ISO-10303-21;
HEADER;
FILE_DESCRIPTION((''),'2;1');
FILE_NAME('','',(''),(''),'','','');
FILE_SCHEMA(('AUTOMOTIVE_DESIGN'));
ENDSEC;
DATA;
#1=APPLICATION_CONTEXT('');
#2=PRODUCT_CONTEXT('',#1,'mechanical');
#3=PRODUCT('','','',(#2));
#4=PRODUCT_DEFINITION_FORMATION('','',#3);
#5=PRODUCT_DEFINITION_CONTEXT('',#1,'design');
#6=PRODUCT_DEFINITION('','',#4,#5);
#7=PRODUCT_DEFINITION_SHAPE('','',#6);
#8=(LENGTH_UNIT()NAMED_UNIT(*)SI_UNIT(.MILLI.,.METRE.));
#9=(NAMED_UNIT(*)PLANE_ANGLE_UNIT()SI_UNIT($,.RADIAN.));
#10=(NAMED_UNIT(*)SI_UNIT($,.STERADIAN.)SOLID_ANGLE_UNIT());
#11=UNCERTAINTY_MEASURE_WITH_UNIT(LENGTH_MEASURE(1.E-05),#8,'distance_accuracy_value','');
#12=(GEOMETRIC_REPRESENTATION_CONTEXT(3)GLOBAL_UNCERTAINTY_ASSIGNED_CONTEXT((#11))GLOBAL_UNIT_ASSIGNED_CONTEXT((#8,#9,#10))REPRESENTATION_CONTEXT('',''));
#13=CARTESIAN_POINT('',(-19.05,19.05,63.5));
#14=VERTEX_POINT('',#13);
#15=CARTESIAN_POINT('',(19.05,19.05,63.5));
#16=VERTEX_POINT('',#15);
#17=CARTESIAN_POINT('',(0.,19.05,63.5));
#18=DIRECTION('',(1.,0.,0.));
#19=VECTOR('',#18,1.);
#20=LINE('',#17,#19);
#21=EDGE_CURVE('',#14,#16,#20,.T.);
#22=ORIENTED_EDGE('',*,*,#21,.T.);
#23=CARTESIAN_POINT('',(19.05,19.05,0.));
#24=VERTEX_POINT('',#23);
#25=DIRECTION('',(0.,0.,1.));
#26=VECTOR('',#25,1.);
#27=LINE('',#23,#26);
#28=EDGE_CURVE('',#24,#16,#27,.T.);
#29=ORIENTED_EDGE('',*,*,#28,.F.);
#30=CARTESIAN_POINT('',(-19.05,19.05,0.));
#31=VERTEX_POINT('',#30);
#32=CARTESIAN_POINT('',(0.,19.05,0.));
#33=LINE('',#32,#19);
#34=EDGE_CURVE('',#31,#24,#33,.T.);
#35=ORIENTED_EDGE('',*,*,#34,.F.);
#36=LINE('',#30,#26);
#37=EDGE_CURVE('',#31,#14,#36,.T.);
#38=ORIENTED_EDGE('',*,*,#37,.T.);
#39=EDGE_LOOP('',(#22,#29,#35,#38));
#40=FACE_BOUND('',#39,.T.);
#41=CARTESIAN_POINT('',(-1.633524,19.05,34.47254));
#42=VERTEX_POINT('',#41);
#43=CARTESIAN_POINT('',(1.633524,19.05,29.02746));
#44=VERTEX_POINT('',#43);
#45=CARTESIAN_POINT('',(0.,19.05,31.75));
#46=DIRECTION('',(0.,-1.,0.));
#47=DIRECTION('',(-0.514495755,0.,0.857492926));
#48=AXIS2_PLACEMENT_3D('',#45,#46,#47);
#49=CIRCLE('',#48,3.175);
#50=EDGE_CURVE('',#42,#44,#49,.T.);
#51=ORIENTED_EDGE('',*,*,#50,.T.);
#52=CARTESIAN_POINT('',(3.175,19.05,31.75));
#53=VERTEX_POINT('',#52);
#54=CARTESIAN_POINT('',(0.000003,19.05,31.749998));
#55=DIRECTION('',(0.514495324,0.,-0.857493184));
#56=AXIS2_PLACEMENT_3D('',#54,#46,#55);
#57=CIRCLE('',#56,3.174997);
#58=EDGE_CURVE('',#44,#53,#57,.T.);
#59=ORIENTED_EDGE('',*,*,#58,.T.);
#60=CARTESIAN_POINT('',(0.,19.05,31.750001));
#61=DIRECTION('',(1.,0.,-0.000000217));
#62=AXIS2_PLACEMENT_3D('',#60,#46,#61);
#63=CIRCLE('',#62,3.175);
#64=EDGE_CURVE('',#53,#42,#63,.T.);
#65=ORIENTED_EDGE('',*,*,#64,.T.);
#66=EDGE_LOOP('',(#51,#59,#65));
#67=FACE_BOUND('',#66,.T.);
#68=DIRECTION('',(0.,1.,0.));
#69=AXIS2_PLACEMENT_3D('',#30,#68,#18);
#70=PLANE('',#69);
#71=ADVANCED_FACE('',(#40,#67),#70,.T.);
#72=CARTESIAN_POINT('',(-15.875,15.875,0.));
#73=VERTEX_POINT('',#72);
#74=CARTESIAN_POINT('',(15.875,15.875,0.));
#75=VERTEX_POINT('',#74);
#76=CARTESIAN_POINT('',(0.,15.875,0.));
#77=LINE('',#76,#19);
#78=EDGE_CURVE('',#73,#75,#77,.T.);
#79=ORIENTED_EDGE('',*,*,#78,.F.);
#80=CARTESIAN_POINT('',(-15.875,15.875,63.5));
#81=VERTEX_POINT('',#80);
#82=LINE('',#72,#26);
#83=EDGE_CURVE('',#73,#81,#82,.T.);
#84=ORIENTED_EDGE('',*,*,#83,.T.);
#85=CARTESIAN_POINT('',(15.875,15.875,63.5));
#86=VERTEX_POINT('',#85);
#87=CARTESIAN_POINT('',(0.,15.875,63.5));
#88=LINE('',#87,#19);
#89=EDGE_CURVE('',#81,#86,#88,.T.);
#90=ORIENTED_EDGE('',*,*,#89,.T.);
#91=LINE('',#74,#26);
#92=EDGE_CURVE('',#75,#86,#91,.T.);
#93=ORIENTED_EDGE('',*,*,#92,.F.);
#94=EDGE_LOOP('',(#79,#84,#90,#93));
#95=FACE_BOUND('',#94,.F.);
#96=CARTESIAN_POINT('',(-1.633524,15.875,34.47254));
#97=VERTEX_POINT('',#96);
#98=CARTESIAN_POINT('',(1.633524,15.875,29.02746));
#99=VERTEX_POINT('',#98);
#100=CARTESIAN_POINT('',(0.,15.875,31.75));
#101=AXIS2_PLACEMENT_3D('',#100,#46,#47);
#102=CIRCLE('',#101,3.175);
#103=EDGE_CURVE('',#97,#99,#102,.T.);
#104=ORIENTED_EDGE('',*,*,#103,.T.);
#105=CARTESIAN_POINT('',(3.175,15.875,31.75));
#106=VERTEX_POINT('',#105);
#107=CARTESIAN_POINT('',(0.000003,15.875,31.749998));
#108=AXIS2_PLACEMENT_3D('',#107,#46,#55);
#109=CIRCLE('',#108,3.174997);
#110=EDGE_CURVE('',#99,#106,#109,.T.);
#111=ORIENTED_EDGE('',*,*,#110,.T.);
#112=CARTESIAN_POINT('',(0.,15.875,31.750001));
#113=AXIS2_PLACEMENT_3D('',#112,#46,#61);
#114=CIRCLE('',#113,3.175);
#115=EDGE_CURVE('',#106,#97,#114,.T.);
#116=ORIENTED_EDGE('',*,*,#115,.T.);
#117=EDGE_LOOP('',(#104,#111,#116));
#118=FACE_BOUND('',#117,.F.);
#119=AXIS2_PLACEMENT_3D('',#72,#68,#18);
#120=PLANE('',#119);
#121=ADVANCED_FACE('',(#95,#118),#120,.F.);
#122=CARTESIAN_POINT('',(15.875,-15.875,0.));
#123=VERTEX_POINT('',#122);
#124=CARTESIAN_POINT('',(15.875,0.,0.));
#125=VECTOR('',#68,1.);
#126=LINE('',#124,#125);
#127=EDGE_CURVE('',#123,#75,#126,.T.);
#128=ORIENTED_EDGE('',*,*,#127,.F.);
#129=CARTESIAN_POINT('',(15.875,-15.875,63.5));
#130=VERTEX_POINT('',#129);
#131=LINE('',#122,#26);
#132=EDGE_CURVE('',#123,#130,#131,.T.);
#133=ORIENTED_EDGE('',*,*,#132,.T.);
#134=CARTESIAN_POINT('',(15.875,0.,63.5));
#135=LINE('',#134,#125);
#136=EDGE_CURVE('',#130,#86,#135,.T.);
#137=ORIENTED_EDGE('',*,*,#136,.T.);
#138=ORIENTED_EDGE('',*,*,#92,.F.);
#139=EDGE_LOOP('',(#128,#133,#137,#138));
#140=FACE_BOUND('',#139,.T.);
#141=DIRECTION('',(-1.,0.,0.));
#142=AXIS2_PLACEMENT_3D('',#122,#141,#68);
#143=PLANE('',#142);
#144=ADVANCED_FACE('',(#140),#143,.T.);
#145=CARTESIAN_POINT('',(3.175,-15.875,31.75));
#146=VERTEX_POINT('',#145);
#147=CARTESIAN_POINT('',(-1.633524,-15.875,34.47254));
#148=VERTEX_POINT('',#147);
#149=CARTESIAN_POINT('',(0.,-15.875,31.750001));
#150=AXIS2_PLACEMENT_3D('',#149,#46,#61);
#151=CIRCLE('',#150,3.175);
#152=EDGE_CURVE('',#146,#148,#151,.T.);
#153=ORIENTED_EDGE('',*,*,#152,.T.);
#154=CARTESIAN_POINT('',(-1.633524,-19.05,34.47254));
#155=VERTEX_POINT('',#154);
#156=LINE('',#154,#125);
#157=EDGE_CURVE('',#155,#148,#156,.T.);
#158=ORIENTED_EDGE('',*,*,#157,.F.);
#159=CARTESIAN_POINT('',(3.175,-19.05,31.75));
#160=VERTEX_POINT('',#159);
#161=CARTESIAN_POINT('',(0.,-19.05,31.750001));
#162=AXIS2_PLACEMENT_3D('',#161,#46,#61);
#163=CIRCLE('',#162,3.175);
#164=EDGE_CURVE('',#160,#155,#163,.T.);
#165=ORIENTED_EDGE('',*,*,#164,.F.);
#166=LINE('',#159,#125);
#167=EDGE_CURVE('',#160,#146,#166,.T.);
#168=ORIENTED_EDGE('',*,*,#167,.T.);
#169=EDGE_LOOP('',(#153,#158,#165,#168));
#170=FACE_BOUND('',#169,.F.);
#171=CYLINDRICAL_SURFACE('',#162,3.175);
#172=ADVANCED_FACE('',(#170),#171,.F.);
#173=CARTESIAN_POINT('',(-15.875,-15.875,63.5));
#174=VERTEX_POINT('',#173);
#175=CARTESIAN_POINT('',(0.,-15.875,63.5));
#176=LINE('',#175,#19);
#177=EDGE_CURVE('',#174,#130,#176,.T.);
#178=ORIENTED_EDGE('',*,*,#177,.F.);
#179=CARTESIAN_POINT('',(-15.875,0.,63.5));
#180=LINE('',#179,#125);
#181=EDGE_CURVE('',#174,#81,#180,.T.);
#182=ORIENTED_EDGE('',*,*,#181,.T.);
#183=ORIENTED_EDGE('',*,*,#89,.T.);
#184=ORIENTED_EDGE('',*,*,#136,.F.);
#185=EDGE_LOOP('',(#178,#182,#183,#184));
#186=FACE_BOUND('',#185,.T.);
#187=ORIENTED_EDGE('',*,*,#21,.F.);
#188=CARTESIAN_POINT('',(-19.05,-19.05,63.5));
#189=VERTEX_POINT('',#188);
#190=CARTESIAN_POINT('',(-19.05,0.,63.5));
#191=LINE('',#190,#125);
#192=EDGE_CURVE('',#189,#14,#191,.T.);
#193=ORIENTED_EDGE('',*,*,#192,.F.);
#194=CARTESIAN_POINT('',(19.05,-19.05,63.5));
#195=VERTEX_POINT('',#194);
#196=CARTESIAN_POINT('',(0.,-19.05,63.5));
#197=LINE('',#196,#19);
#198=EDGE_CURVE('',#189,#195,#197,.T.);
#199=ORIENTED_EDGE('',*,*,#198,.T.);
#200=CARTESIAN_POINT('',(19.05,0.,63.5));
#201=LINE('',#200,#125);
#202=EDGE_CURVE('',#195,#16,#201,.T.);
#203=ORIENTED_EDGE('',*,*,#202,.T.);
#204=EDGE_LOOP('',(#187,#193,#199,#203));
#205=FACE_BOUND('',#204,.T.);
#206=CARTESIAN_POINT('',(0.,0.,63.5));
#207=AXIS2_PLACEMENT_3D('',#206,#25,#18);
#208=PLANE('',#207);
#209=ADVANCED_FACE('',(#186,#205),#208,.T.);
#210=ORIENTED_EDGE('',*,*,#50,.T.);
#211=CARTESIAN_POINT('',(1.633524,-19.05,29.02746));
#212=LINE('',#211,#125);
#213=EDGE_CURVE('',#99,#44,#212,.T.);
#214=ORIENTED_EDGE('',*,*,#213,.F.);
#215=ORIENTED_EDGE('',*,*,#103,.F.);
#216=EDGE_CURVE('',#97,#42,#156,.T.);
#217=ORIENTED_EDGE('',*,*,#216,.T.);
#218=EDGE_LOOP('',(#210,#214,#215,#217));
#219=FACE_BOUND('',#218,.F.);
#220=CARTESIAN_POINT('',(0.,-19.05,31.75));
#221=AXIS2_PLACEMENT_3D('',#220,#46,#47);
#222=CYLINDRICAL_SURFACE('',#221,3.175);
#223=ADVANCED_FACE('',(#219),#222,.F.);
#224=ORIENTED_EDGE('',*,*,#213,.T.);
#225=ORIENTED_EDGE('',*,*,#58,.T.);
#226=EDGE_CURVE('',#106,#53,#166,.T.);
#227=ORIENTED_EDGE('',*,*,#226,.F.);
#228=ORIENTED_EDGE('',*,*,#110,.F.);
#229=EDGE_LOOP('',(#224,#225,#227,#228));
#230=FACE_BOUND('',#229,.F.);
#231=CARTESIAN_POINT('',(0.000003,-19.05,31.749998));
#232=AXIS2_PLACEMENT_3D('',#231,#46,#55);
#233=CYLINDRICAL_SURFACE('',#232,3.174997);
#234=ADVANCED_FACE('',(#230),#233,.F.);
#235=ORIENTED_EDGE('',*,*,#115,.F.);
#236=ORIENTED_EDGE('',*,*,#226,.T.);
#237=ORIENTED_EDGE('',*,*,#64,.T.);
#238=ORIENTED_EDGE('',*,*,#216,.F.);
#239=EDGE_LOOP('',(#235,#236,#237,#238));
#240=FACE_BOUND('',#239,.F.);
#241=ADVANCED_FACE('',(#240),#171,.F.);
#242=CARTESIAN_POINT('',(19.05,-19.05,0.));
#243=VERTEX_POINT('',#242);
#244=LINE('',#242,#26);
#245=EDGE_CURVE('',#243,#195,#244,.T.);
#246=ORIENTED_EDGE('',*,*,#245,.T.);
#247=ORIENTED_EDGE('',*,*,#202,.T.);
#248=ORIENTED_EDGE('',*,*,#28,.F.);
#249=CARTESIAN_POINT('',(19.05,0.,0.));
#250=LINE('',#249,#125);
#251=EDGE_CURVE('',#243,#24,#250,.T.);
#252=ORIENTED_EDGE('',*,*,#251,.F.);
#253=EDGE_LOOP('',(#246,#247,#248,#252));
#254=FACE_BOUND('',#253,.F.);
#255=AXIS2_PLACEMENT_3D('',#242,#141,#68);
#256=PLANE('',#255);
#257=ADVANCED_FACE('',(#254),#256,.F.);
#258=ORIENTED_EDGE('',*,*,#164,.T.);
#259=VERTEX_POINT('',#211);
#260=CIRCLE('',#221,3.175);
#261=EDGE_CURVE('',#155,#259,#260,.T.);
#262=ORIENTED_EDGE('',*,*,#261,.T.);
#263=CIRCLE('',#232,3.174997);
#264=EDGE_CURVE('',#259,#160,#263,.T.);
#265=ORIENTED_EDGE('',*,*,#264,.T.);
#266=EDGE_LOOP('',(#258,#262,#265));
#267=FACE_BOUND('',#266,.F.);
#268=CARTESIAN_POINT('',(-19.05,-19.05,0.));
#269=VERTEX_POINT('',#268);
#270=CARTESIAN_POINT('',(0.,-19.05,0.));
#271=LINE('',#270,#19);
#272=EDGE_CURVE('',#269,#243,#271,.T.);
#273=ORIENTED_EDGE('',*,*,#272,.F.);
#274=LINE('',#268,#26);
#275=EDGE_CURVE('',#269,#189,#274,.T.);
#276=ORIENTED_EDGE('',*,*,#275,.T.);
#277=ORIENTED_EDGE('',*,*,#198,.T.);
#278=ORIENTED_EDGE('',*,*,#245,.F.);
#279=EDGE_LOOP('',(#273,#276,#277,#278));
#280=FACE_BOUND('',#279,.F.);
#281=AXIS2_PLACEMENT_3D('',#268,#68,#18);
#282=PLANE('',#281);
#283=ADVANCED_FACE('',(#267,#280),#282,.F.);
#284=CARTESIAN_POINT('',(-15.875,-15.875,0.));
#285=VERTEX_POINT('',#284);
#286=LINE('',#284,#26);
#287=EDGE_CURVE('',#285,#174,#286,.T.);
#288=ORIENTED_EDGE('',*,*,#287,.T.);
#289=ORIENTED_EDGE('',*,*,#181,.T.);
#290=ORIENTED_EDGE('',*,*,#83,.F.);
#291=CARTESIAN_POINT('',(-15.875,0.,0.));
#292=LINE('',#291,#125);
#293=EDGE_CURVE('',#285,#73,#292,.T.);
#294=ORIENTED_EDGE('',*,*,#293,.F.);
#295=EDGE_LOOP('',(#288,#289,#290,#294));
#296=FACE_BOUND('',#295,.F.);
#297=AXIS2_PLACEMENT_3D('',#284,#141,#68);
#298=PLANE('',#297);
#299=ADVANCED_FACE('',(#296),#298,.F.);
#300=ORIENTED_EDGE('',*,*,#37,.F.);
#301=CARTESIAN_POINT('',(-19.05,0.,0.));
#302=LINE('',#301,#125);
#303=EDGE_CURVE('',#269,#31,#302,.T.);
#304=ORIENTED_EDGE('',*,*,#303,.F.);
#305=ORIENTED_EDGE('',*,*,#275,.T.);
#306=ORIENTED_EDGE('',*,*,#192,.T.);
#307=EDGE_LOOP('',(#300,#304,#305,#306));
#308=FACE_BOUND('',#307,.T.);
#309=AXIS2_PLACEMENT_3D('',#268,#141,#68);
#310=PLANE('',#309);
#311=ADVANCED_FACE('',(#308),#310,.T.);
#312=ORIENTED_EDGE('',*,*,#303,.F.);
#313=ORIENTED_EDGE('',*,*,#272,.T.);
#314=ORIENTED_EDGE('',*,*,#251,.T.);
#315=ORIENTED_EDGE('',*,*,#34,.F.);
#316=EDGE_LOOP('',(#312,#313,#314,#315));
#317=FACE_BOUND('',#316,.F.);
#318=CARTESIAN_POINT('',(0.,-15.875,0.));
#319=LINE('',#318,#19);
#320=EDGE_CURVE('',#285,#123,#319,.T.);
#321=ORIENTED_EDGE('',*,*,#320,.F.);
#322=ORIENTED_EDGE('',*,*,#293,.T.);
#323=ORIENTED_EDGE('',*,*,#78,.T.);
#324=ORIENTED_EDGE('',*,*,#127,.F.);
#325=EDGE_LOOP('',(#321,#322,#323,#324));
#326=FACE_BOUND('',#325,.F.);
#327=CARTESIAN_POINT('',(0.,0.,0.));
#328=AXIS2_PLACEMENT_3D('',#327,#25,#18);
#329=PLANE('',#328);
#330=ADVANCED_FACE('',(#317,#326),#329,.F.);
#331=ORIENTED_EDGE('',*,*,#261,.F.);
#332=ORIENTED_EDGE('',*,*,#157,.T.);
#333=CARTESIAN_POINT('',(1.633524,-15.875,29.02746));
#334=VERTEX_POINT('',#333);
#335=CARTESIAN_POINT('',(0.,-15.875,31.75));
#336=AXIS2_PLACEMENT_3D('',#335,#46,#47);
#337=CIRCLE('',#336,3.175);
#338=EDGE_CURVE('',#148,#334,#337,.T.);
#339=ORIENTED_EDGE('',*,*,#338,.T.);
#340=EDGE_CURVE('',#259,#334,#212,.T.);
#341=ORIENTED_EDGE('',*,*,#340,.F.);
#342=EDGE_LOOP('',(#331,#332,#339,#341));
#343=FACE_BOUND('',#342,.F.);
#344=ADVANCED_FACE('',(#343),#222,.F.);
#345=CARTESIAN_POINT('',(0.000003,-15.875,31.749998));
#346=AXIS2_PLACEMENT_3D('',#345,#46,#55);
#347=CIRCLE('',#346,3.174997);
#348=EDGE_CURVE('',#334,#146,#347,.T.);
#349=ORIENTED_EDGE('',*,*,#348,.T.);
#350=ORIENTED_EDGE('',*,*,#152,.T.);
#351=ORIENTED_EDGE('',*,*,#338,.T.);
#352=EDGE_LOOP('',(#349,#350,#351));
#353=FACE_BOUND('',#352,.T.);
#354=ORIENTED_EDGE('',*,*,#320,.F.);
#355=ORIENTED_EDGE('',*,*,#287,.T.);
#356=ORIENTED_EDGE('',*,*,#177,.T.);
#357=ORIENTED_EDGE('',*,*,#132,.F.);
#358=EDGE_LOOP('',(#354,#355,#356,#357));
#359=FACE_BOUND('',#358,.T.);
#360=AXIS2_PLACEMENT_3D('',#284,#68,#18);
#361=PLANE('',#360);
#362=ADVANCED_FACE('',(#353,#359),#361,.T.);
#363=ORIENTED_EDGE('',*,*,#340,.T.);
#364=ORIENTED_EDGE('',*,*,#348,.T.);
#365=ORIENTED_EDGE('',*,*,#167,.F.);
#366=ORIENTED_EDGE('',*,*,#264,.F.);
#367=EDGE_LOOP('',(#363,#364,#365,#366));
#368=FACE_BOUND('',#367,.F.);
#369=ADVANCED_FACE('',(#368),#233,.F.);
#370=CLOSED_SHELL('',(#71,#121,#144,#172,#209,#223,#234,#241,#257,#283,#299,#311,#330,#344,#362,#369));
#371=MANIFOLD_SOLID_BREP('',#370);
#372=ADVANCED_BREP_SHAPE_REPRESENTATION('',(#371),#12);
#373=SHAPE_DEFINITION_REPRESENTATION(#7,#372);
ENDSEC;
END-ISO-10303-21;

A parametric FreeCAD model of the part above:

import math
import FreeCAD as App
import Part
import Sketcher

V = App.Vector
Q = App.Units.Quantity


def add_polygon(sketch, points):
    """Adds a closed chain of lines whose ends are joined by coincident constraints."""
    first, n = sketch.GeometryCount, len(points)
    for a, b in zip(points, points[1:] + points[:1]):
        sketch.addGeometry(Part.LineSegment(App.Vector(*a, 0), App.Vector(*b, 0)), False)
    for i in range(n):
        sketch.addConstraint(Sketcher.Constraint("Coincident", first + i, 2, first + (i + 1) % n, 1))

doc = App.newDocument("Part")
body = doc.addObject("PartDesign::Body", "Body")

# Sketch on XY plane
sketch1 = body.newObject("Sketcher::SketchObject", "Sketch")
sketch1.AttachmentSupport = (doc.getObject("XY_Plane"), [""])
sketch1.MapMode = "FlatFace"
add_polygon(sketch1, [(-19, 19), (-19, -19), (19, -19), (19, 19)])  # lines 0-3
add_polygon(sketch1, [(16, -16), (-16, -16), (-16, 16), (16, 16)])  # lines 4-7
sketch1.addConstraint([
    Sketcher.Constraint("Vertical", 0),
    Sketcher.Constraint("Horizontal", 1),
    Sketcher.Constraint("Vertical", 2),
    Sketcher.Constraint("Horizontal", 3),
    Sketcher.Constraint("Horizontal", 4),
    Sketcher.Constraint("Vertical", 5),
    Sketcher.Constraint("Horizontal", 6),
    Sketcher.Constraint("Vertical", 7),
    Sketcher.Constraint("Symmetric", 0, 2, 2, 2, -1, 1),
    Sketcher.Constraint("Symmetric", 4, 2, 6, 2, -1, 1),
    Sketcher.Constraint("Equal", 3, 0),
    Sketcher.Constraint("Equal", 6, 5),
    Sketcher.Constraint("DistanceX", 1, 1, 1, 2, Q("1.5 in")),
    Sketcher.Constraint("DistanceX", 4, 2, 4, 1, Q("1.25 in")),
])
pad1 = body.newObject("PartDesign::Pad", "Pad")
pad1.Profile = sketch1
pad1.Length = Q("2.5 in")

# Sketch on XZ plane
sketch2 = body.newObject("Sketcher::SketchObject", "Sketch001")
sketch2.AttachmentSupport = (doc.getObject("XZ_Plane"), [""])
sketch2.MapMode = "FlatFace"
sketch2.AttachmentOffset = App.Placement(V(0, 0, 0.75 * 25.4), App.Rotation())
sketch2.addGeometry([
    Part.ArcOfCircle(Part.Circle(V(0, 31.8, 0), V(0, 0, 1), 3.2), math.radians(0), math.radians(121)),
    Part.ArcOfCircle(Part.Circle(V(0, 31.8, 0), V(0, 0, 1), 3.2), math.radians(121), math.radians(301)),
    Part.ArcOfCircle(Part.Circle(V(0, 31.7, 0), V(0, 0, 1), 3.2), math.radians(-59), math.radians(0)),
], False)
sketch2.addConstraint([
    Sketcher.Constraint("Tangent", 0, 2, 1, 1),
    Sketcher.Constraint("Tangent", 1, 2, 2, 1),
    Sketcher.Constraint("Tangent", 2, 2, 0, 1),
    Sketcher.Constraint("PointOnObject", 0, 3, -2),
    Sketcher.Constraint("Horizontal", 1, 3, 2, 2),
    Sketcher.Constraint("Radius", 0, Q("0.125 in")),
    Sketcher.Constraint("DistanceY", -1, 1, 0, 3, Q("1.25 in")),
    Sketcher.Constraint("DistanceY", -1, 1, 0, 2, 34.47254),
    Sketcher.Constraint("DistanceY", -1, 1, 1, 2, 29.02746),
])
pocket1 = body.newObject("PartDesign::Pocket", "Pocket")
pocket1.Profile = sketch2
pocket1.Type = "ThroughAll"

doc.recompute()
